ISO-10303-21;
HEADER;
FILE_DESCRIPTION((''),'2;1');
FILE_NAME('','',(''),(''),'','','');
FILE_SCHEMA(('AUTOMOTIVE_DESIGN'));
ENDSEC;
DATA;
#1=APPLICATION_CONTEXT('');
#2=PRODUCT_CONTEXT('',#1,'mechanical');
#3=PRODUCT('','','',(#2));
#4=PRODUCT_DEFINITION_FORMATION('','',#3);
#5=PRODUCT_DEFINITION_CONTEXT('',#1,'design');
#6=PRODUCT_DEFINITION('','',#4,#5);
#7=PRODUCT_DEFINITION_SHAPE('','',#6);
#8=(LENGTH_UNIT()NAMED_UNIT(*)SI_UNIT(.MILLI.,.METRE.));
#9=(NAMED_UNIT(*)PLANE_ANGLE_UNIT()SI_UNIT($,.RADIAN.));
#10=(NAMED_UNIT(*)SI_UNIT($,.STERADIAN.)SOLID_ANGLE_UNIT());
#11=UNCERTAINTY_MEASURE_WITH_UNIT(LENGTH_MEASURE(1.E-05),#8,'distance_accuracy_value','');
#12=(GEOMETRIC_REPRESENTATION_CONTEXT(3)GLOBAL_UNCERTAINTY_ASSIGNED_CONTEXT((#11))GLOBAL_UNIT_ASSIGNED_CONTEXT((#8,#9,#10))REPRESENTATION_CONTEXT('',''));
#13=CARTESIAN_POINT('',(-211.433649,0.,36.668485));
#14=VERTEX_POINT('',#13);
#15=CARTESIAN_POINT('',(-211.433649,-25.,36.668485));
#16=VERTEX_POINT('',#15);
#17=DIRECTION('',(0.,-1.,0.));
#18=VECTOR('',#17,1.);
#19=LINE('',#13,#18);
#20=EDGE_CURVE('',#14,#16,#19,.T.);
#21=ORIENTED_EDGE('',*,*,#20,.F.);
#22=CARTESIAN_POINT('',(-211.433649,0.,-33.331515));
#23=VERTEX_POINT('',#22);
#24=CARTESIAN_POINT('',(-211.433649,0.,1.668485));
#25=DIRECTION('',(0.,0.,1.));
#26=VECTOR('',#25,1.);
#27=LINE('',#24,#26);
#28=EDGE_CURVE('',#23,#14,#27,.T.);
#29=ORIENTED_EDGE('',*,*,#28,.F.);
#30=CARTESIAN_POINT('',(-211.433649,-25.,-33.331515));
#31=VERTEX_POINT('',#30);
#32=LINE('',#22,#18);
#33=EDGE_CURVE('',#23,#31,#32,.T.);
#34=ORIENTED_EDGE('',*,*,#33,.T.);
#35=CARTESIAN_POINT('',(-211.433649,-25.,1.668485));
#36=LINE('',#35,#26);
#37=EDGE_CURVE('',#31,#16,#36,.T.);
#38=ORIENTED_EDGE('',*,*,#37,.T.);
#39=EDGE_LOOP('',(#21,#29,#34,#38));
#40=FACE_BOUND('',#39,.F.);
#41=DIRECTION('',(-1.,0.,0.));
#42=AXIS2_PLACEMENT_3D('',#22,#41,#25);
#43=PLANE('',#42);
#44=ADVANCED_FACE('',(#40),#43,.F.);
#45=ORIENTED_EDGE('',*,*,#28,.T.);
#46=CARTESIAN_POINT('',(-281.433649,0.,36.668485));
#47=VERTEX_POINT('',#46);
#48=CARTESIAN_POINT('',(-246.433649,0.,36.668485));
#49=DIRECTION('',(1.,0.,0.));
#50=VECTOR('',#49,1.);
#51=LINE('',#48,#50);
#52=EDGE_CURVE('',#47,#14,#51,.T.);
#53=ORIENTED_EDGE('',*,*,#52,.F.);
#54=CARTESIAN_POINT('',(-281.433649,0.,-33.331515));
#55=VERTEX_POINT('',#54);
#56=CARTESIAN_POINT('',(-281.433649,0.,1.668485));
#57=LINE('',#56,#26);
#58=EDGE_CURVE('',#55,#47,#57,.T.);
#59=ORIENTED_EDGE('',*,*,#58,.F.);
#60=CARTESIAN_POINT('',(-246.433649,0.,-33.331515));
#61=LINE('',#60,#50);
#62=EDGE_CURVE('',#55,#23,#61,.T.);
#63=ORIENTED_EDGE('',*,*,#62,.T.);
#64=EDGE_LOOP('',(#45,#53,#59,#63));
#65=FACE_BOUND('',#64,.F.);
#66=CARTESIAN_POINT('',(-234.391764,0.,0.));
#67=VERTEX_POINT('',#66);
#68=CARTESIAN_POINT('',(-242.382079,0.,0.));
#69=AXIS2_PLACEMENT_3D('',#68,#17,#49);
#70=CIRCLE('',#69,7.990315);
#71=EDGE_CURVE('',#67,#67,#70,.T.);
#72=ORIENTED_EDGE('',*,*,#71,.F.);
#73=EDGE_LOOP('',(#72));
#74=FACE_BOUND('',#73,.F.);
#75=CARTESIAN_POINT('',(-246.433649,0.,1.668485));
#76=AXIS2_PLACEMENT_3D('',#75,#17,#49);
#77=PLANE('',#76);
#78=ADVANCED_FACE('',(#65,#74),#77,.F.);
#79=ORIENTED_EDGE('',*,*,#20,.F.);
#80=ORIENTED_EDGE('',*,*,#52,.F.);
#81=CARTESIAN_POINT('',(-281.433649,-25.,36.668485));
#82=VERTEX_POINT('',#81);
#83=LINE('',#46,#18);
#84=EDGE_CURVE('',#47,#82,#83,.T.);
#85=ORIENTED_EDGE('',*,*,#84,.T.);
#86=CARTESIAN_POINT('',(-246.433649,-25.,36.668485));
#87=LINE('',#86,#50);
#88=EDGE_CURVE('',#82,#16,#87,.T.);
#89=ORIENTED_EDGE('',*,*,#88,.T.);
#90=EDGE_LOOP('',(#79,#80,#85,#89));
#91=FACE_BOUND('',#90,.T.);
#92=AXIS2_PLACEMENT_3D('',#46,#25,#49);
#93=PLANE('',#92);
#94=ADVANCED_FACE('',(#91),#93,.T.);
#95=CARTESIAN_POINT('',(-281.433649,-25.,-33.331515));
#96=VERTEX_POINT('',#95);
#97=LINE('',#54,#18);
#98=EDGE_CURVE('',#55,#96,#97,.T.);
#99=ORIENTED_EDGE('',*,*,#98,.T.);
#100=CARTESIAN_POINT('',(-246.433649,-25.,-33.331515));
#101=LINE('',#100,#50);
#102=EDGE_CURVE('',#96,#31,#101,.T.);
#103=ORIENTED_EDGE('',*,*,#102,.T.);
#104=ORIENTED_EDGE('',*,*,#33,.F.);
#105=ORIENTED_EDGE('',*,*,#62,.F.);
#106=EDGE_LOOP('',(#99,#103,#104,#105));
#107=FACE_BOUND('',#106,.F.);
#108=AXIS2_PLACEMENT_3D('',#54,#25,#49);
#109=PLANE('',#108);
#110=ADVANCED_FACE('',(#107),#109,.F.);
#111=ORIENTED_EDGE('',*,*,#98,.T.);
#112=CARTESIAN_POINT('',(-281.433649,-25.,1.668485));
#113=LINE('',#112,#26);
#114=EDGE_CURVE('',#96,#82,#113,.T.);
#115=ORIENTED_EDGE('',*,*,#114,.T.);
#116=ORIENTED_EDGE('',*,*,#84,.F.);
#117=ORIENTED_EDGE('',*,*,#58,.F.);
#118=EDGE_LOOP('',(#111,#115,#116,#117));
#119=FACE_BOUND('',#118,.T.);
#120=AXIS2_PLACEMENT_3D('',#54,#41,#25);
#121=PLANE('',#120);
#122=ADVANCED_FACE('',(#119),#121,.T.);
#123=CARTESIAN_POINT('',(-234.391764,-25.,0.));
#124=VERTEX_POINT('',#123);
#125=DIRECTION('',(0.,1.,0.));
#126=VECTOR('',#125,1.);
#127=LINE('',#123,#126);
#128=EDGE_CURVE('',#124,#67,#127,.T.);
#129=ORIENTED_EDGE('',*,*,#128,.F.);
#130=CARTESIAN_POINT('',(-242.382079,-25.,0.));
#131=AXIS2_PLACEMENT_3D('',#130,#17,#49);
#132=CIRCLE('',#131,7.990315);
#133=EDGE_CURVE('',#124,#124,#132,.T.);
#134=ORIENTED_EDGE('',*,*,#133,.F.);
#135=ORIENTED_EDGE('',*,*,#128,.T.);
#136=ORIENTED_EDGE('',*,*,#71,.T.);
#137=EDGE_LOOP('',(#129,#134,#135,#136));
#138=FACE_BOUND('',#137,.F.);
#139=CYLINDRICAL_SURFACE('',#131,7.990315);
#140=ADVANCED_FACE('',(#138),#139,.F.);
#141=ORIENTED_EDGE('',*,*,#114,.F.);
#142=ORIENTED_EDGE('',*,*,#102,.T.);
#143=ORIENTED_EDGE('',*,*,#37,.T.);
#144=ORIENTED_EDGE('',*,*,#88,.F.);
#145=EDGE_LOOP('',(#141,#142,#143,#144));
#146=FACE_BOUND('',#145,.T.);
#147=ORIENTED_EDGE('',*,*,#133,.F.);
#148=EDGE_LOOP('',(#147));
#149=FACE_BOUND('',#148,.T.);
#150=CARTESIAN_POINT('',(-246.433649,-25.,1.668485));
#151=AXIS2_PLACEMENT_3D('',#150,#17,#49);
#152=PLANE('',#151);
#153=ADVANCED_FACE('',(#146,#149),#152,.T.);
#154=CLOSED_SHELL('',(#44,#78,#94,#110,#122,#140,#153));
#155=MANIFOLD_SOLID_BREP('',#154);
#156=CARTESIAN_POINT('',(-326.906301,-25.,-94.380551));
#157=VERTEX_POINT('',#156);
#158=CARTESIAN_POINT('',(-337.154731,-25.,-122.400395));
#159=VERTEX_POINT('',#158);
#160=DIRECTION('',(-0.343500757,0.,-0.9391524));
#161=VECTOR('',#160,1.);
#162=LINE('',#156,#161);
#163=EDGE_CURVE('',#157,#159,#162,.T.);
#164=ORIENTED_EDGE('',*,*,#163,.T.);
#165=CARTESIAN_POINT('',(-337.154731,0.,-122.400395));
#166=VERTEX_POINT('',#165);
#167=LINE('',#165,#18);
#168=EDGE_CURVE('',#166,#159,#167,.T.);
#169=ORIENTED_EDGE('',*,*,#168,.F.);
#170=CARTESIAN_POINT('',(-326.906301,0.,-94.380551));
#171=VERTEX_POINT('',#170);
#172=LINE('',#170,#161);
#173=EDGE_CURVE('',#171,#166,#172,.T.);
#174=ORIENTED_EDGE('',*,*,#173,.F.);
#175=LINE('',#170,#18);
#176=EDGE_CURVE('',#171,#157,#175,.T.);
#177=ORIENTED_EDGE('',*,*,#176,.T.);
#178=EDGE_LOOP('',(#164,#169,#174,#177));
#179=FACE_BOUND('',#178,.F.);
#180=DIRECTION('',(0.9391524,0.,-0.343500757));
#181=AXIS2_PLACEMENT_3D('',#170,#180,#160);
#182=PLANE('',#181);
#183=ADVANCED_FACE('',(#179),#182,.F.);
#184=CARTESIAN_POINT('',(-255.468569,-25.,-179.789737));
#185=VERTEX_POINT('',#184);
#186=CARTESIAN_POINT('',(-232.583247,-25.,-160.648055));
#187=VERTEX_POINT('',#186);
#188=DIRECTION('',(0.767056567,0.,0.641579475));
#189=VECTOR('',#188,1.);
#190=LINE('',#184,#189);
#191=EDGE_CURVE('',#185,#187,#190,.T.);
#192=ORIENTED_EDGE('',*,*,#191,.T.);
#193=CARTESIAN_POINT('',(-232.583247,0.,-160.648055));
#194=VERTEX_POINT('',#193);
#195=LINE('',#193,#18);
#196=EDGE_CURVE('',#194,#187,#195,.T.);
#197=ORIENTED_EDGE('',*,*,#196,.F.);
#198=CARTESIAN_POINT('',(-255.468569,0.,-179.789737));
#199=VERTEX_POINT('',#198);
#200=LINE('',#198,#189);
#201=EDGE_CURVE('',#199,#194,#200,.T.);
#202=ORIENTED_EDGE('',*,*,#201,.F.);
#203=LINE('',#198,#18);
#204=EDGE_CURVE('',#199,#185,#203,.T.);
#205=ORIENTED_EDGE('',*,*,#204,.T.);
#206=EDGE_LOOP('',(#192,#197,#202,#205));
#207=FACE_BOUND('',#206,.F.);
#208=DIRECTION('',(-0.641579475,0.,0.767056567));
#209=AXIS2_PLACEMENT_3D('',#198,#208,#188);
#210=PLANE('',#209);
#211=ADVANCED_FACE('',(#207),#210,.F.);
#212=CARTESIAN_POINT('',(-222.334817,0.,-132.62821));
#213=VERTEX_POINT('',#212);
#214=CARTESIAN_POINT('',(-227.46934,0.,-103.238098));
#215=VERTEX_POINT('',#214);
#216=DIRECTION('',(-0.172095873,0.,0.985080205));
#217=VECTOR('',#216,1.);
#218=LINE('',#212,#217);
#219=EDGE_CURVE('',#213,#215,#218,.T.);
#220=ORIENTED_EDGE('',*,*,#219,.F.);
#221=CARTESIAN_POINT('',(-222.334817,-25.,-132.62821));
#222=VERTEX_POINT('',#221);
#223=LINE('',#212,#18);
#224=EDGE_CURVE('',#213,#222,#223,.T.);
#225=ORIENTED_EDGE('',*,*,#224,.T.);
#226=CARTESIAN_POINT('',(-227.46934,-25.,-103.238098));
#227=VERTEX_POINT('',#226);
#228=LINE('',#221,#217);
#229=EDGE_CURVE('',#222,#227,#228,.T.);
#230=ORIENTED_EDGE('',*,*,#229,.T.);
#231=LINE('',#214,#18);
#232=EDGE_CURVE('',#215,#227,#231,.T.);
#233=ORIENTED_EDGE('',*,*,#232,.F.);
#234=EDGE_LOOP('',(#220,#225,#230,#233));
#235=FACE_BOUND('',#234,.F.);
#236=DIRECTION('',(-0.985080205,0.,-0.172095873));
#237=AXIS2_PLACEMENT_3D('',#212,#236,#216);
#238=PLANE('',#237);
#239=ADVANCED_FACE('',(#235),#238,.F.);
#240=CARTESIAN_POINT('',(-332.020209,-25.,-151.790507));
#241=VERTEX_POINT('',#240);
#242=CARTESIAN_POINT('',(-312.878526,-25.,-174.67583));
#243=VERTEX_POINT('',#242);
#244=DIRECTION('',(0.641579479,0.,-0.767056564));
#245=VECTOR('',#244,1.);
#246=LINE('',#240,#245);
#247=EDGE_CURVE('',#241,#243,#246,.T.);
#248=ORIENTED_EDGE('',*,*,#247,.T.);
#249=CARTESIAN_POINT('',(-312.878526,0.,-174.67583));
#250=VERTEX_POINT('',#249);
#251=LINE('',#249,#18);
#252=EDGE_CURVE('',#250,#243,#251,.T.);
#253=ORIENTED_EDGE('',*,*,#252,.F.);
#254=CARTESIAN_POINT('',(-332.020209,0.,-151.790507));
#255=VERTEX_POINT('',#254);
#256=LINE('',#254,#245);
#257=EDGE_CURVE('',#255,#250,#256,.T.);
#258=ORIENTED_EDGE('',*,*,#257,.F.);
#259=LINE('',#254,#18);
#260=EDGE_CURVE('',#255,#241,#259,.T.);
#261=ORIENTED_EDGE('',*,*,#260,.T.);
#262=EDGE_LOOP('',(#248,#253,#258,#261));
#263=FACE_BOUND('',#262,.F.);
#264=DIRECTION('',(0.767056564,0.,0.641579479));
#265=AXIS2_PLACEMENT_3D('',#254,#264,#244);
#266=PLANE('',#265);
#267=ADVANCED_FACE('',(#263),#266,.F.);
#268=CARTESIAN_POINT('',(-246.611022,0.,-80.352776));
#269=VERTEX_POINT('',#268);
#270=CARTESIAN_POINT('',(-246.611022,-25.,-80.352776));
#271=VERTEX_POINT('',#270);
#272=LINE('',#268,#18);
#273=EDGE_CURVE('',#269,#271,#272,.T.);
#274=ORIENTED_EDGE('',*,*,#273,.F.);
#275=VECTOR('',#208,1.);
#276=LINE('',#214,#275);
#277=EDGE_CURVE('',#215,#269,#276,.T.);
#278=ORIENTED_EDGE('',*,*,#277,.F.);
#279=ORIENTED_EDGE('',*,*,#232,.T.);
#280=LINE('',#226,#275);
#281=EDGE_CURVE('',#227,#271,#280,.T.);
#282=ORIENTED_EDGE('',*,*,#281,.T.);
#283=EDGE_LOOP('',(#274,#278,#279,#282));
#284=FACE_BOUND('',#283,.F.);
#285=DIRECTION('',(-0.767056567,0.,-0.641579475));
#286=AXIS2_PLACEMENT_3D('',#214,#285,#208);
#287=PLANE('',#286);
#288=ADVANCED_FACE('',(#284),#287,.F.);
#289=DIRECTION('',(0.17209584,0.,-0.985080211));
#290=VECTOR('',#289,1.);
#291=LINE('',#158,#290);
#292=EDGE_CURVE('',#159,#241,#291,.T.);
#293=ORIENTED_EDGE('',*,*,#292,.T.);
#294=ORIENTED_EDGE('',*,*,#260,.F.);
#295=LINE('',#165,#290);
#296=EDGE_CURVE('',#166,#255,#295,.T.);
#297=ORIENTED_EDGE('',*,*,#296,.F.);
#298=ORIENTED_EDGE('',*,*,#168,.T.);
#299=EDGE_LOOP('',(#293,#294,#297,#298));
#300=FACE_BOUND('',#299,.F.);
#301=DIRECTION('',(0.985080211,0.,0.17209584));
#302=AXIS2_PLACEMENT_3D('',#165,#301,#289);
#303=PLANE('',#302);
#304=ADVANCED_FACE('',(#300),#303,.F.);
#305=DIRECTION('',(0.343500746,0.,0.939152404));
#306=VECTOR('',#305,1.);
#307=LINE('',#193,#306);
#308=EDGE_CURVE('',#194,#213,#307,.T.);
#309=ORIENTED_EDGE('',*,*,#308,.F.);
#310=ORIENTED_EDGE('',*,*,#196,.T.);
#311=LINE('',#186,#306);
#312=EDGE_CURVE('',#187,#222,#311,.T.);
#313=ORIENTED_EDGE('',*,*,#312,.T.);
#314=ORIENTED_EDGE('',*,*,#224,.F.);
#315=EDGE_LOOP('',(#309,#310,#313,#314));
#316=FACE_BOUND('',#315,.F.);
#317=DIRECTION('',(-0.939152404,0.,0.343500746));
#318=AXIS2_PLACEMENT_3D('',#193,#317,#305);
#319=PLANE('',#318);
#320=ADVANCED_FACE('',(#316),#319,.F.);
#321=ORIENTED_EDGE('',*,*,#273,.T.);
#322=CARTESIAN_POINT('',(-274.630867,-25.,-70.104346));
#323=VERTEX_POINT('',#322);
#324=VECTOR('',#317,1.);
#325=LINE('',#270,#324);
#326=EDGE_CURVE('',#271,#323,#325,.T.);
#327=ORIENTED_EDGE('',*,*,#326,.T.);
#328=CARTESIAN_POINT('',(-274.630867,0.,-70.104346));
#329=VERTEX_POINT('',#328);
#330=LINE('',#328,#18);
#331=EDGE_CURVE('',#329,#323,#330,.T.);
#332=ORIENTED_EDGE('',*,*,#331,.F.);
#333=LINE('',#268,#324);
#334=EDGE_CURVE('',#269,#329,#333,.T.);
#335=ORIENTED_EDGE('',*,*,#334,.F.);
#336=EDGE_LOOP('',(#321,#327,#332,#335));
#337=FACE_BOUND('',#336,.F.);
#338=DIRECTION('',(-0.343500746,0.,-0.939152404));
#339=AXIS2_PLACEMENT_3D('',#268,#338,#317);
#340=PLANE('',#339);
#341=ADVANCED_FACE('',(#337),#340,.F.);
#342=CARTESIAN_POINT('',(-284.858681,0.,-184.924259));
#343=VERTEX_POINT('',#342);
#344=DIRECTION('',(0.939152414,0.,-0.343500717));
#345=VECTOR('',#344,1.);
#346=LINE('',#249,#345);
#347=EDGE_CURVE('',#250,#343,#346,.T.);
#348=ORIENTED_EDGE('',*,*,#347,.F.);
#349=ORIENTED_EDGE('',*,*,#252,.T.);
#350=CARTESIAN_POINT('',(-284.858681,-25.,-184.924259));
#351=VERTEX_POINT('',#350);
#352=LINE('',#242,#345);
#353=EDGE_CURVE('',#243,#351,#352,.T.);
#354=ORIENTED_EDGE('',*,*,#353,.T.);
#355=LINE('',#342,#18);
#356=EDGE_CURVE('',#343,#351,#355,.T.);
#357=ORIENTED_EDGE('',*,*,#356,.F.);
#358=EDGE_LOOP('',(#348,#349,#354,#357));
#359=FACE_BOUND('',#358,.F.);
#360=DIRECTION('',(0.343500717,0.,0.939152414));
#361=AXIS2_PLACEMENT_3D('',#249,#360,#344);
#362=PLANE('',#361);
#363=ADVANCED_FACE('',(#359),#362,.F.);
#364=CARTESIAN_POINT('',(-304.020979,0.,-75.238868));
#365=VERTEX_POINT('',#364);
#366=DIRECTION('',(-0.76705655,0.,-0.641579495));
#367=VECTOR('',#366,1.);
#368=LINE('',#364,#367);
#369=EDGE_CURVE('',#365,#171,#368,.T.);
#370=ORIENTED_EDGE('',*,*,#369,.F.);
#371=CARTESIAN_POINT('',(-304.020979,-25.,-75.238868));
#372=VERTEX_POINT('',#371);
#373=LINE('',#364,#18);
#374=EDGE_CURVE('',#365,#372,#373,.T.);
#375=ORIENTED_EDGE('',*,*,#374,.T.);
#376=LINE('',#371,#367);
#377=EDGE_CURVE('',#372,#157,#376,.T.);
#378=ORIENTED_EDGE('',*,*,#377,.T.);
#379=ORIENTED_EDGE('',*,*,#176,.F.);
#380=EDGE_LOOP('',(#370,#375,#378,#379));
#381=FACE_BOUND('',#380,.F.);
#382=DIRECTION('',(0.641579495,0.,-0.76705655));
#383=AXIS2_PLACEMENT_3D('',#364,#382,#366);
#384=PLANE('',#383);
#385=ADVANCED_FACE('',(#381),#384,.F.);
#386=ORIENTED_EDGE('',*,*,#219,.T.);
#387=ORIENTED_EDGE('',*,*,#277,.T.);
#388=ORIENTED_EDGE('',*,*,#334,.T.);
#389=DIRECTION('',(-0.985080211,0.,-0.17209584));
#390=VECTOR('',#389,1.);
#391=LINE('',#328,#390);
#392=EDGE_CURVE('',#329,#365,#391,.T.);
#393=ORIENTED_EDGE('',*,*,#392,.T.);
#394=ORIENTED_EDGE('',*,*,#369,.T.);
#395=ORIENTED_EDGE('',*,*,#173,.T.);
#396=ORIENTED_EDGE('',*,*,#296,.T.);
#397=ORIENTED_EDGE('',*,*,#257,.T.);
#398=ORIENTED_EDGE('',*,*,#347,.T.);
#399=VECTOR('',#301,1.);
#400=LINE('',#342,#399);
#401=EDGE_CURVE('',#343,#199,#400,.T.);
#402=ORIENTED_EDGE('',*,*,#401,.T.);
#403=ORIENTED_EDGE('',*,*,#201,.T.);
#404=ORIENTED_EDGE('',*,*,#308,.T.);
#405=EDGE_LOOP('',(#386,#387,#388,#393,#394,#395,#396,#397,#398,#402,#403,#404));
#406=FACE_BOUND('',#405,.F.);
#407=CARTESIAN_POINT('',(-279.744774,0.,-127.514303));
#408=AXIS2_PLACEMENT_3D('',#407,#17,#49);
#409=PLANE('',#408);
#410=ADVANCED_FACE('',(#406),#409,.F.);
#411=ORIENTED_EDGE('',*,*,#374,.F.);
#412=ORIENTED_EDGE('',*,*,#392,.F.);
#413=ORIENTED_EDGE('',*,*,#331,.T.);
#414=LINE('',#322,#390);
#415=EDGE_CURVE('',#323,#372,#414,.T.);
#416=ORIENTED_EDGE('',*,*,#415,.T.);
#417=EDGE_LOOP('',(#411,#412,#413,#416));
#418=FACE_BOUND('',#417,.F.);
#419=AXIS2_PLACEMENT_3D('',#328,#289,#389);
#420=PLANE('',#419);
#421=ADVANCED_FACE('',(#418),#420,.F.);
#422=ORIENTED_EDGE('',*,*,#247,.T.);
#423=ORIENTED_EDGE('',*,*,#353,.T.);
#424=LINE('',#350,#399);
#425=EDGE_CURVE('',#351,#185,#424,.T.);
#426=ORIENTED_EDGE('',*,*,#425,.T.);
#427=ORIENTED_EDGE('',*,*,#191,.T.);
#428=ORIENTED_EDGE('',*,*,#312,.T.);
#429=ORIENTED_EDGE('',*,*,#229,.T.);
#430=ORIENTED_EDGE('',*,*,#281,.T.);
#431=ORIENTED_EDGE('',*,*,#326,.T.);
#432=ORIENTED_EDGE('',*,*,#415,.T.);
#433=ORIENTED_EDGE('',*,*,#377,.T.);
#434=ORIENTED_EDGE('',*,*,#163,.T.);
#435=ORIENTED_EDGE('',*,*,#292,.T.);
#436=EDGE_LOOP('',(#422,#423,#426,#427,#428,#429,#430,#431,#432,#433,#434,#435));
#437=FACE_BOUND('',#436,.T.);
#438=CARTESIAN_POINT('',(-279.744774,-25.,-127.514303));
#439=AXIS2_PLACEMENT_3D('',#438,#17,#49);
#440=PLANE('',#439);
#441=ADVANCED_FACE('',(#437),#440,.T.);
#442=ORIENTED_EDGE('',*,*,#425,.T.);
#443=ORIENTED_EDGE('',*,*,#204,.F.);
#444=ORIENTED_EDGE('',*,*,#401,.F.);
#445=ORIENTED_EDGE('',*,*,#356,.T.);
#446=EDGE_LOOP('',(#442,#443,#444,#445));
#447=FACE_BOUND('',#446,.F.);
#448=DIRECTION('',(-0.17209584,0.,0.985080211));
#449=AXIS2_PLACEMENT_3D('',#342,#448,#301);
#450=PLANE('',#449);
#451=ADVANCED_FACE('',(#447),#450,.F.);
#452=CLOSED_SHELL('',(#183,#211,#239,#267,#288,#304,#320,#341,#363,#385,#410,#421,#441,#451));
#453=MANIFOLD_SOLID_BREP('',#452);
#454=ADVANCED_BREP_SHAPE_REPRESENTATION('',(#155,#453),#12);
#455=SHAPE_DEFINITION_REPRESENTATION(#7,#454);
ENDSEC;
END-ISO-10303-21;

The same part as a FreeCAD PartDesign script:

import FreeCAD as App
import Part
import Sketcher
from FreeCAD import Vector
Q = App.Units.Quantity


def add_polygon(sketch, points):
    """Adds a closed chain of lines whose ends are joined by coincident constraints."""
    first, n = sketch.GeometryCount, len(points)
    for a, b in zip(points, points[1:] + points[:1]):
        sketch.addGeometry(Part.LineSegment(App.Vector(*a, 0), App.Vector(*b, 0)), False)
    for i in range(n):
        sketch.addConstraint(Sketcher.Constraint("Coincident", first + i, 2, first + (i + 1) % n, 1))

doc = App.newDocument("Part")
body = doc.addObject("PartDesign::Body", "Body")
body.AllowCompound = True

# Sketch on XZ plane
sketch1 = doc.addObject("Sketcher::SketchObject", "Sketch")
body.addObject(sketch1)
sketch1.AttachmentSupport = (doc.XZ_Plane, [""])
sketch1.MapMode = "FlatFace"
add_polygon(sketch1, [(-281.433649, 36.668485), (-281.433649, -33.331515), (-211.433649, -33.331515), (-211.433649, 36.668485)])  # lines 0-3
add_polygon(sketch1, [(-284.858681, -184.924259), (-255.468569, -179.789737), (-232.583247, -160.648055), (-222.334817, -132.62821), (-227.46934, -103.238098), (-246.611022, -80.352776), (-274.630867, -70.104346), (-304.020979, -75.238868), (-326.906301, -94.380551), (-337.154731, -122.400395), (-332.020209, -151.790507), (-312.878526, -174.67583)])  # lines 4-15
sketch1.addConstraint([
    Sketcher.Constraint("Vertical", 0),
    Sketcher.Constraint("Horizontal", 1),
    Sketcher.Constraint("Vertical", 2),
    Sketcher.Constraint("Horizontal", 3),
    Sketcher.Constraint("Perpendicular", 4, 7),
    Sketcher.Constraint("Perpendicular", 5, 8),
    Sketcher.Constraint("Perpendicular", 6, 9),
    Sketcher.Constraint("Perpendicular", 7, 10),
    Sketcher.Constraint("Perpendicular", 8, 11),
    Sketcher.Constraint("Perpendicular", 9, 12),
    Sketcher.Constraint("Perpendicular", 10, 13),
    Sketcher.Constraint("Perpendicular", 11, 14),
    Sketcher.Constraint("Perpendicular", 12, 15),
    Sketcher.Constraint("Equal", 3, 0),
    Sketcher.Constraint("Equal", 4, 5),
    Sketcher.Constraint("Equal", 5, 6),
    Sketcher.Constraint("Equal", 6, 7),
    Sketcher.Constraint("Equal", 7, 8),
    Sketcher.Constraint("Equal", 8, 9),
    Sketcher.Constraint("Equal", 9, 10),
    Sketcher.Constraint("Equal", 10, 11),
    Sketcher.Constraint("Equal", 11, 12),
    Sketcher.Constraint("Equal", 12, 13),
    Sketcher.Constraint("DistanceX", 1, 1, 1, 2, Q("70 mm")),
    Sketcher.Constraint("DistanceX", 11, 2, -1, 1, Q("326.906301 mm")),
    Sketcher.Constraint("Distance", 6, Q("29.835248 mm")),
    Sketcher.Constraint("DistanceX", 0, 2, -1, 1, Q("281.433649 mm")),
    Sketcher.Constraint("DistanceX", 4, 2, -1, 1, Q("255.468569 mm")),
    Sketcher.Constraint("DistanceY", 6, 2, -1, 1, Q("132.62821 mm")),
    Sketcher.Constraint("DistanceX", 7, 2, -1, 1, Q("227.46934 mm")),
    Sketcher.Constraint("DistanceX", 8, 2, -1, 1, Q("246.611022 mm")),
    Sketcher.Constraint("DistanceY", 4, 2, 0, 2, Q("146.458222 mm")),
])
pad1 = doc.addObject("PartDesign::Pad", "Pad")
body.addObject(pad1)
pad1.Profile = sketch1
pad1.Length = 25

# Sketch on XZ plane
sketch2 = doc.addObject("Sketcher::SketchObject", "Sketch001")
body.addObject(sketch2)
sketch2.AttachmentSupport = (doc.XZ_Plane, [""])
sketch2.MapMode = "FlatFace"
sketch2.AttachmentOffset = App.Placement(Vector(0, 0, 25), App.Rotation())
sketch2.addGeometry(Part.Circle(Vector(-242.382079, 0, 0), Vector(0, 0, 1), 7.990315), False)
sketch2.addConstraint([
    Sketcher.Constraint("PointOnObject", 0, 3, -1),
    Sketcher.Constraint("Diameter", 0, Q("15.98063 mm")),
    Sketcher.Constraint("DistanceX", 0, 3, -1, 1, Q("242.382079 mm")),
])
pocket1 = doc.addObject("PartDesign::Pocket", "Pocket")
body.addObject(pocket1)
pocket1.Profile = sketch2
pocket1.Length = 25

doc.recompute()
